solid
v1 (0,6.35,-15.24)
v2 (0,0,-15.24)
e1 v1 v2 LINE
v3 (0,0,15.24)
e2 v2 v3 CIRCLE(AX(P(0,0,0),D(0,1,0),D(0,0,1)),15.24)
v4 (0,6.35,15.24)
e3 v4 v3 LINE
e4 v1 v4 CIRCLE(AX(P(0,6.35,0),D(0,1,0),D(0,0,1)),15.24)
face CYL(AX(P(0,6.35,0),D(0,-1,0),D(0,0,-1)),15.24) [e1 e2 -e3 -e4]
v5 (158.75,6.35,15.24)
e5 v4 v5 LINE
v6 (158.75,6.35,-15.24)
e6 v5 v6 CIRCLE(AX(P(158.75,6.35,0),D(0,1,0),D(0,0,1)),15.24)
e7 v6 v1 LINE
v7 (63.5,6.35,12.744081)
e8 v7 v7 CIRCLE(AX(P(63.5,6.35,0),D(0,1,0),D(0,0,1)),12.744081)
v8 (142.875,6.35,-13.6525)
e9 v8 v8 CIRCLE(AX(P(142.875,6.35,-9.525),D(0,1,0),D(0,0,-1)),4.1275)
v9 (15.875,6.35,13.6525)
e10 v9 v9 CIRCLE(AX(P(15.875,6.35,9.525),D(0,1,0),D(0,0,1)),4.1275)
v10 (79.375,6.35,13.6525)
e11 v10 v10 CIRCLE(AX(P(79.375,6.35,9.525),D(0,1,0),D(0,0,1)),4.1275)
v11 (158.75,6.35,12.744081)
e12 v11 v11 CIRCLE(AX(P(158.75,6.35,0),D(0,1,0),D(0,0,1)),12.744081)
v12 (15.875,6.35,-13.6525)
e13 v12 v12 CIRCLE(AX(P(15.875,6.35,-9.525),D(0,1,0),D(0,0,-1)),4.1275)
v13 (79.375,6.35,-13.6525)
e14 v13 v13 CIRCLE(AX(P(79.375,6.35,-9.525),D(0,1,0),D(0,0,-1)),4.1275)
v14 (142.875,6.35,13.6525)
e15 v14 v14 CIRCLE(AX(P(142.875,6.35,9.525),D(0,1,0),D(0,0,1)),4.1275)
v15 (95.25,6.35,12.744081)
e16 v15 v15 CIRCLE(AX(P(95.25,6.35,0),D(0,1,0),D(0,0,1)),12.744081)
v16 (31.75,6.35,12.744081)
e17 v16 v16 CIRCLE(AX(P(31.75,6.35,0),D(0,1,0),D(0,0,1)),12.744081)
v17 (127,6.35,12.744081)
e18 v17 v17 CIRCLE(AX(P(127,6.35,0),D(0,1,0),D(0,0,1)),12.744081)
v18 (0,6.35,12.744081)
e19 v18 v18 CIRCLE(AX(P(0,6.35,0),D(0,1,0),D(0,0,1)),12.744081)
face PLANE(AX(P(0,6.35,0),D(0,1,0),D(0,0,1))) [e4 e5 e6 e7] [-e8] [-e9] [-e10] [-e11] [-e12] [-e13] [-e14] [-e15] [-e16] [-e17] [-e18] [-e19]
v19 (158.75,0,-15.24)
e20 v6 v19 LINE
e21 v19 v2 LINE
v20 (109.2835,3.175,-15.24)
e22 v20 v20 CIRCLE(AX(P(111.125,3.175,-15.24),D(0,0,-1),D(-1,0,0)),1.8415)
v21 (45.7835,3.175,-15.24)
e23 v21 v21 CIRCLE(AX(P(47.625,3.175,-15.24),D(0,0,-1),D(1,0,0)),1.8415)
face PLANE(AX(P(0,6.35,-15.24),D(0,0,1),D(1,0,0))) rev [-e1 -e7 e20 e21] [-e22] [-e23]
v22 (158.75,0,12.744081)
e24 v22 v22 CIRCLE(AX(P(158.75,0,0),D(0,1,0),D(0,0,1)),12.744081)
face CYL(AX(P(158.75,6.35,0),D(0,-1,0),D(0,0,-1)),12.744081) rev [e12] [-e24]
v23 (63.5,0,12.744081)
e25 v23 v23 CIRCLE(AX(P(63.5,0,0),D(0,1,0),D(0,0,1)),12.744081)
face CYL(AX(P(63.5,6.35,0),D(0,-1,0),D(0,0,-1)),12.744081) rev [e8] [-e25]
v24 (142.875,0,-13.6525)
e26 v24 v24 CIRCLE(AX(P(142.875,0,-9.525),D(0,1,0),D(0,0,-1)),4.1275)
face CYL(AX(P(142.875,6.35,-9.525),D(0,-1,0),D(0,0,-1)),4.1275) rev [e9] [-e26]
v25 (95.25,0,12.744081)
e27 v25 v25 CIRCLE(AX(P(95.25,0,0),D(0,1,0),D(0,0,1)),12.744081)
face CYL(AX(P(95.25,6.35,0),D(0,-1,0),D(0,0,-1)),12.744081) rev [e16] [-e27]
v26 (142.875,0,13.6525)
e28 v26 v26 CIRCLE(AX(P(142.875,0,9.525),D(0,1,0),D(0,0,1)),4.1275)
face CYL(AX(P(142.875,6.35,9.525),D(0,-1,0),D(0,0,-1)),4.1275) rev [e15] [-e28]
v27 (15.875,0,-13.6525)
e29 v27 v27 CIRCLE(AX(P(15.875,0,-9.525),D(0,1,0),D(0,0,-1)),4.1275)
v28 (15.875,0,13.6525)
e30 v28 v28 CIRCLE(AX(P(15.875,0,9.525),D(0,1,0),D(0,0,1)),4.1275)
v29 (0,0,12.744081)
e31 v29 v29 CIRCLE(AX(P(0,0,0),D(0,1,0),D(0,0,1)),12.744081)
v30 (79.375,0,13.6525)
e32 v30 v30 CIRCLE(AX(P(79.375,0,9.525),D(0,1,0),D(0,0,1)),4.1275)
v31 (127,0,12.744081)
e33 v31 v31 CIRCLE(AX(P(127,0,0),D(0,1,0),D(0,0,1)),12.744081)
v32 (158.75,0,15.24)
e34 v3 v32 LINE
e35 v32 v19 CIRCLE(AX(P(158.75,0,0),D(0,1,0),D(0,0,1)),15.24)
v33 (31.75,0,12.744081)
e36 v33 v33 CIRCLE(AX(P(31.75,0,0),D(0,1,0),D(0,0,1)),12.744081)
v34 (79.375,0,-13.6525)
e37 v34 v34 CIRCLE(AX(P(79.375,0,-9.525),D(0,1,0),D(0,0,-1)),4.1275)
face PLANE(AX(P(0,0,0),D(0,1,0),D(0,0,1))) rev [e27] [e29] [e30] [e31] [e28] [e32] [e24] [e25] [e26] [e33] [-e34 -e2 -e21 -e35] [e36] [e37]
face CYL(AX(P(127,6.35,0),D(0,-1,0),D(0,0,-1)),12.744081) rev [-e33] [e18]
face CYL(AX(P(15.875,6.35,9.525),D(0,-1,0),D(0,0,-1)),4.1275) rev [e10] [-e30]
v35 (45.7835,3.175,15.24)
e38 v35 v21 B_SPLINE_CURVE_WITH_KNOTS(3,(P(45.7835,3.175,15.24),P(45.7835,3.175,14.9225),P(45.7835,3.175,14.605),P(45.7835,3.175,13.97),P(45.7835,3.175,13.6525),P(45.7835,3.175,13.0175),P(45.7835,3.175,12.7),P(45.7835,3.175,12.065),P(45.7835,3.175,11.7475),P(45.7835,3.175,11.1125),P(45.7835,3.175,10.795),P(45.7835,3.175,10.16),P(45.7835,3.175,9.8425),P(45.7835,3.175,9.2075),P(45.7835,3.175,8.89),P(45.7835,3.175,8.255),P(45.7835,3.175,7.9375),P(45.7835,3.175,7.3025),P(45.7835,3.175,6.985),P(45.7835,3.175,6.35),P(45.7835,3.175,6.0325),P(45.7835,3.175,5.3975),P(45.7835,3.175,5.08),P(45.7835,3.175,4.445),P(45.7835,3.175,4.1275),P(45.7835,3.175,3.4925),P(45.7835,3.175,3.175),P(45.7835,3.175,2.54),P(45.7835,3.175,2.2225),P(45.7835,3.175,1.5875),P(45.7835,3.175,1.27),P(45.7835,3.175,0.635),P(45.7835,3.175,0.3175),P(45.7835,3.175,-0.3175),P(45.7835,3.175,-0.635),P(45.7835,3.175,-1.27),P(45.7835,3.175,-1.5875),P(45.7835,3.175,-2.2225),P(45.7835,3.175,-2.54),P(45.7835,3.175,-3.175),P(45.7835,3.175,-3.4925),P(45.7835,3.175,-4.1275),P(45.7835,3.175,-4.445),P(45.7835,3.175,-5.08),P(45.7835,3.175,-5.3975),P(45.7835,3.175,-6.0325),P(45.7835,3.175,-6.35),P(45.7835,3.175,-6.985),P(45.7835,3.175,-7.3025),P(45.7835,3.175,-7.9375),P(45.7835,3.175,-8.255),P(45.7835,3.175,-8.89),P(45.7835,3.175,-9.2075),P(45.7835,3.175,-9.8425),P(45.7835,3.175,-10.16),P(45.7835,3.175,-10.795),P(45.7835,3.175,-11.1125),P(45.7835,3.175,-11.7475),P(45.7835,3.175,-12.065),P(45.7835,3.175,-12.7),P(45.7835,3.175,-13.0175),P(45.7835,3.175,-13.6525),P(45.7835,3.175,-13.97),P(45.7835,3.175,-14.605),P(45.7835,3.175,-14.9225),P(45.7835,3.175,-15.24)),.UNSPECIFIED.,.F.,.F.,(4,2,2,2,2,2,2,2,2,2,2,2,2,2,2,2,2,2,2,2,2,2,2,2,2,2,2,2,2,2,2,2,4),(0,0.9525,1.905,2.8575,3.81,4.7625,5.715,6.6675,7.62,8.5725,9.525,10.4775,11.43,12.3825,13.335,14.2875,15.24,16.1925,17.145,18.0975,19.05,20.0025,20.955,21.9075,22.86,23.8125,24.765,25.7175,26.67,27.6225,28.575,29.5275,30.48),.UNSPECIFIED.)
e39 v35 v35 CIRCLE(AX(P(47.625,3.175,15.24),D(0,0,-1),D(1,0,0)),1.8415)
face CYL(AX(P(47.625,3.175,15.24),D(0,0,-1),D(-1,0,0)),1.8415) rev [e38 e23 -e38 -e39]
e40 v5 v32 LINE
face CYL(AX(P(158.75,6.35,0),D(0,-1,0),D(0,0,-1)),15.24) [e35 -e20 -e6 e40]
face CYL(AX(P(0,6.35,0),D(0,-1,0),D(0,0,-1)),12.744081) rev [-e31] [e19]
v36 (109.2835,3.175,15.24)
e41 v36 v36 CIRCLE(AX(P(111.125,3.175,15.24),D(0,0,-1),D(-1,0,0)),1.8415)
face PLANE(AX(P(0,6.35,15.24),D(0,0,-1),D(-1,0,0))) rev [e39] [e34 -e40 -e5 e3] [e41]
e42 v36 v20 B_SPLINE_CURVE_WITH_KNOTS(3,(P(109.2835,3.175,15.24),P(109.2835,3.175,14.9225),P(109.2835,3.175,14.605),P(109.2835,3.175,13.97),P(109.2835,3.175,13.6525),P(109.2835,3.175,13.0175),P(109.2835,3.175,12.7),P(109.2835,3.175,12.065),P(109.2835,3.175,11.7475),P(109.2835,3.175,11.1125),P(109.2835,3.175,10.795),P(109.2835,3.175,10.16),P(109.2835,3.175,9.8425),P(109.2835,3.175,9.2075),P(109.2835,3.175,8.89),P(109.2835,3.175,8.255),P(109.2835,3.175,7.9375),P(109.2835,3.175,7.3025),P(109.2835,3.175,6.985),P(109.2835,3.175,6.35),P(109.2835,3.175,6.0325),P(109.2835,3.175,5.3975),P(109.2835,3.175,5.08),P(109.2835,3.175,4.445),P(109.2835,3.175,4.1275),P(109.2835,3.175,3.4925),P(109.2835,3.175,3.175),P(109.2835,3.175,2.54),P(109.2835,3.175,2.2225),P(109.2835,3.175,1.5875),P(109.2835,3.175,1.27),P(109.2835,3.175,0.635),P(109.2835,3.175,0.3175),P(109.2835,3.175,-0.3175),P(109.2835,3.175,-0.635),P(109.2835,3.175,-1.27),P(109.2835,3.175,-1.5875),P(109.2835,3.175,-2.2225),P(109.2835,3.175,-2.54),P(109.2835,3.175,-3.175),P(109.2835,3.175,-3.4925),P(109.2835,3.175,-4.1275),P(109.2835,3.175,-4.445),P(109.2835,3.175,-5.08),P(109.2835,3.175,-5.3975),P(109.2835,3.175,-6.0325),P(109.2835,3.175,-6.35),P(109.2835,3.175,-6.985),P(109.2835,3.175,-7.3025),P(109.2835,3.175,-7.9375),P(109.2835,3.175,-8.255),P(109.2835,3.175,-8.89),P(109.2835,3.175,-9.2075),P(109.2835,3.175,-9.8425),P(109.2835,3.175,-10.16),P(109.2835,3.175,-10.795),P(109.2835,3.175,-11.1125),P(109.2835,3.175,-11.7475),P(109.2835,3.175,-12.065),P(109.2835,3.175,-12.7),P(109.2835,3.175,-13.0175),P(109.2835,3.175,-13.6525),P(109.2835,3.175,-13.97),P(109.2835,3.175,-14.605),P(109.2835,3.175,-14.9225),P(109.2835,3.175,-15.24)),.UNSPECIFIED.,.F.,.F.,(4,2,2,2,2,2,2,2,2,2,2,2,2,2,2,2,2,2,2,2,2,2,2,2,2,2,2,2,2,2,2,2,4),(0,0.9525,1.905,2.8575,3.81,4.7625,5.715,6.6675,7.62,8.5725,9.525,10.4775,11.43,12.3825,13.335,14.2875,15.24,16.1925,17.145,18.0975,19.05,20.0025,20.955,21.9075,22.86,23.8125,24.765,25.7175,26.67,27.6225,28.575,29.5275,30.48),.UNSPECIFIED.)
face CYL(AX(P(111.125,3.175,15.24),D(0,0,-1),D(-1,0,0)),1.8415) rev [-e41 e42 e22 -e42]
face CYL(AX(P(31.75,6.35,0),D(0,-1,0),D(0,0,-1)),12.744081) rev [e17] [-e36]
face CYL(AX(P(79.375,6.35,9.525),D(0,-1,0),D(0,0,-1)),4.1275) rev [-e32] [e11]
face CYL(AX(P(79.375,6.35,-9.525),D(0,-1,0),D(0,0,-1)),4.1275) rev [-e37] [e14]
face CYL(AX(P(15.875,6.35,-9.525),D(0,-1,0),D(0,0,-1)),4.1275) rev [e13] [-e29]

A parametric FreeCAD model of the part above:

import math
import FreeCAD as App
import Part
import Sketcher
from FreeCAD import Vector
Q = App.Units.Quantity

doc = App.newDocument("Part")
body = doc.addObject("PartDesign::Body", "Body")

sketch1 = body.newObject("Sketcher::SketchObject", "Sketch")
sketch1.AttachmentSupport = (doc.getObject("XZ_Plane"), [""])
sketch1.MapMode = "FlatFace"
sketch1.addGeometry([
    Part.LineSegment(Vector(0, 15.24, 0), Vector(158.75, 15.24, 0)),
    Part.ArcOfCircle(Part.Circle(Vector(158.75, 0, 0), Vector(0, 0, 1), 15.24), math.radians(-90), math.radians(90)),
    Part.LineSegment(Vector(158.75, -15.24, 0), Vector(0, -15.24, 0)),
    Part.ArcOfCircle(Part.Circle(Vector(0, 0, 0), Vector(0, 0, 1), 15.24), math.radians(90), math.radians(270)),
    Part.Circle(Vector(15.875, 9.525, 0), Vector(0, 0, 1), 4.1275),
    Part.Circle(Vector(79.375, 9.525, 0), Vector(0, 0, 1), 4.1275),
    Part.Circle(Vector(142.875, 9.525, 0), Vector(0, 0, 1), 4.1275),
    Part.Circle(Vector(0, 0, 0), Vector(0, 0, 1), 12.744081),
    Part.Circle(Vector(31.75, 0, 0), Vector(0, 0, 1), 12.744081),
    Part.Circle(Vector(63.5, 0, 0), Vector(0, 0, 1), 12.744081),
    Part.Circle(Vector(15.875, -9.525, 0), Vector(0, 0, 1), 4.1275),
    Part.Circle(Vector(79.375, -9.525, 0), Vector(0, 0, 1), 4.1275),
    Part.Circle(Vector(95.25, 0, 0), Vector(0, 0, 1), 12.744081),
    Part.Circle(Vector(127, 0, 0), Vector(0, 0, 1), 12.744081),
    Part.Circle(Vector(158.75, 0, 0), Vector(0, 0, 1), 12.744081),
    Part.Circle(Vector(142.875, -9.525, 0), Vector(0, 0, 1), 4.1275),
], False)
sketch1.addConstraint([
    Sketcher.Constraint("Tangent", 0, 2, 1, 2),
    Sketcher.Constraint("Tangent", 1, 1, 2, 1),
    Sketcher.Constraint("Tangent", 2, 2, 3, 2),
    Sketcher.Constraint("Tangent", 3, 1, 0, 1),
    Sketcher.Constraint("Horizontal", 0),
    Sketcher.Constraint("Horizontal", 2),
    Sketcher.Constraint("Coincident", 3, 3, -1, 1),
    Sketcher.Constraint("Coincident", 7, 3, -1, 1),
    Sketcher.Constraint("Coincident", 14, 3, 1, 3),
    Sketcher.Constraint("Equal", 4, 5),
    Sketcher.Constraint("Equal", 5, 6),
    Sketcher.Constraint("Equal", 7, 8),
    Sketcher.Constraint("Equal", 8, 9),
    Sketcher.Constraint("Equal", 6, 10),
    Sketcher.Constraint("Equal", 10, 11),
    Sketcher.Constraint("Equal", 9, 12),
    Sketcher.Constraint("Equal", 12, 13),
    Sketcher.Constraint("Equal", 13, 14),
    Sketcher.Constraint("Equal", 11, 15),
    Sketcher.Constraint("Symmetric", 4, 3, 10, 3, -1),
    Sketcher.Constraint("Symmetric", 5, 3, 11, 3, -1),
    Sketcher.Constraint("Symmetric", 6, 3, 15, 3, -1),
    Sketcher.Constraint("PointOnObject", 8, 3, -1),
    Sketcher.Constraint("PointOnObject", 9, 3, -1),
    Sketcher.Constraint("PointOnObject", 12, 3, -1),
    Sketcher.Constraint("PointOnObject", 13, 3, -1),
    Sketcher.Constraint("Horizontal", 4, 3, 5, 3),
    Sketcher.Constraint("Horizontal", 5, 3, 6, 3),
    Sketcher.Constraint("Radius", 1, Q("0.6 in")),
    Sketcher.Constraint("Diameter", 4, Q("0.325 in")),
    Sketcher.Constraint("DistanceX", -1, 1, 13, 3, Q("5 in")),
    Sketcher.Constraint("DistanceX", 4, 3, 6, 3, Q("5 in")),
    Sketcher.Constraint("DistanceX", 0, 1, 0, 2, Q("6.25 in")),
    Sketcher.Constraint("DistanceX", -1, 1, 9, 3, Q("2.5 in")),
    Sketcher.Constraint("DistanceX", 4, 3, 5, 3, Q("2.5 in")),
    Sketcher.Constraint("DistanceX", 12, 3, 1, 3, Q("2.5 in")),
    Sketcher.Constraint("DistanceX", -1, 1, 8, 3, Q("1.25 in")),
    Sketcher.Constraint("DistanceY", 10, 3, 4, 3, Q("0.75 in")),
    Sketcher.Constraint("Diameter", 7, 25.488161),
    Sketcher.Constraint("DistanceX", -1, 1, 4, 3, Q("0.625 in")),
])
pad1 = body.newObject("PartDesign::Pad", "Pad")
pad1.Profile = sketch1
pad1.Length = Q("0.25 in")
pad1.Reversed = True

sketch2 = body.newObject("Sketcher::SketchObject", "Sketch001")
sketch2.AttachmentSupport = (doc.getObject("XY_Plane"), [""])
sketch2.MapMode = "FlatFace"
sketch2.AttachmentOffset = App.Placement(Vector(0, 0, -0.6 * 25.4), App.Rotation())
sketch2.addGeometry([
    Part.Circle(Vector(111.125, 3.175, 0), Vector(0, 0, 1), 1.8415),
    Part.Circle(Vector(47.625, 3.175, 0), Vector(0, 0, 1), 1.8415),
], False)
sketch2.addConstraint([
    Sketcher.Constraint("Equal", 0, 1),
    Sketcher.Constraint("Horizontal", 0, 3, 1, 3),
    Sketcher.Constraint("Diameter", 0, Q("0.145 in")),
    Sketcher.Constraint("DistanceX", 1, 3, 0, 3, Q("2.5 in")),
    Sketcher.Constraint("DistanceX", -1, 1, 0, 3, Q("4.375 in")),
    Sketcher.Constraint("DistanceY", -1, 1, 0, 3, Q("0.125 in")),
])
pocket1 = body.newObject("PartDesign::Pocket", "Pocket")
pocket1.Profile = sketch2
pocket1.Type = "ThroughAll"
pocket1.Reversed = True

doc.recompute()
